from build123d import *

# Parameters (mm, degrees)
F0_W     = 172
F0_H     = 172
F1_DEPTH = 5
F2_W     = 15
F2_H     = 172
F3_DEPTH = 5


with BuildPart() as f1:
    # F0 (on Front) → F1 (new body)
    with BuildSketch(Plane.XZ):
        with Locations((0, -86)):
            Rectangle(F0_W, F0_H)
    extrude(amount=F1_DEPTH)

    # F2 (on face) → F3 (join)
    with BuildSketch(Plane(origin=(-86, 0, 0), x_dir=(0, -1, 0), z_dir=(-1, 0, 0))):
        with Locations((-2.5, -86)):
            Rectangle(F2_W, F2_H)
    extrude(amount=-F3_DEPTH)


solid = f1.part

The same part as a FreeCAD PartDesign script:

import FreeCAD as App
import Part
import Sketcher
from FreeCAD import Vector
Q = App.Units.Quantity

doc = App.newDocument("Part")
body = doc.addObject("PartDesign::Body", "Body")

# Sketch on XZ plane
sketch1 = body.newObject("Sketcher::SketchObject", "Sketch")
sketch1.AttachmentSupport = (doc.getObject("XZ_Plane"), [""])
sketch1.MapMode = "FlatFace"
sketch1.addGeometry(Part.LineSegment(Vector(-86, 0, 0), Vector(-86, -172, 0)), False)
sketch1.addGeometry(Part.LineSegment(Vector(-86, -172, 0), Vector(86, -172, 0)), False)
sketch1.addGeometry(Part.LineSegment(Vector(86, -172, 0), Vector(86, 0, 0)), False)
sketch1.addGeometry(Part.LineSegment(Vector(86, 0, 0), Vector(-86, 0, 0)), False)
sketch1.addConstraint(Sketcher.Constraint("Coincident", 0, 2, 1, 1))
sketch1.addConstraint(Sketcher.Constraint("Coincident", 1, 2, 2, 1))
sketch1.addConstraint(Sketcher.Constraint("Coincident", 2, 2, 3, 1))
sketch1.addConstraint(Sketcher.Constraint("Coincident", 3, 2, 0, 1))
sketch1.addConstraint(Sketcher.Constraint("Vertical", 0))
sketch1.addConstraint(Sketcher.Constraint("Horizontal", 1))
sketch1.addConstraint(Sketcher.Constraint("Vertical", 2))
sketch1.addConstraint(Sketcher.Constraint("Horizontal", 3))
sketch1.addConstraint(Sketcher.Constraint("Symmetric", 2, 2, 3, 2, -1, 1))
sketch1.addConstraint(Sketcher.Constraint("Equal", 3, 0))
sketch1.addConstraint(Sketcher.Constraint("DistanceX", 1, 1, 1, 2, Q("172 mm")))
pad1 = body.newObject("PartDesign::Pad", "Pad")
pad1.Profile = sketch1
pad1.Length = 5

# Sketch on YZ plane
sketch2 = body.newObject("Sketcher::SketchObject", "Sketch001")
sketch2.AttachmentSupport = (doc.getObject("YZ_Plane"), [""])
sketch2.MapMode = "FlatFace"
sketch2.AttachmentOffset = App.Placement(Vector(0, 0, -86), App.Rotation())
sketch2.addGeometry(Part.LineSegment(Vector(10, 0, 0), Vector(10, -172, 0)), False)
sketch2.addGeometry(Part.LineSegment(Vector(10, -172, 0), Vector(-5, -172, 0)), False)
sketch2.addGeometry(Part.LineSegment(Vector(-5, -172, 0), Vector(-5, 0, 0)), False)
sketch2.addGeometry(Part.LineSegment(Vector(-5, 0, 0), Vector(10, 0, 0)), False)
sketch2.addConstraint(Sketcher.Constraint("Coincident", 0, 2, 1, 1))
sketch2.addConstraint(Sketcher.Constraint("Coincident", 1, 2, 2, 1))
sketch2.addConstraint(Sketcher.Constraint("Coincident", 2, 2, 3, 1))
sketch2.addConstraint(Sketcher.Constraint("Coincident", 3, 2, 0, 1))
sketch2.addConstraint(Sketcher.Constraint("Vertical", 0))
sketch2.addConstraint(Sketcher.Constraint("Horizontal", 1))
sketch2.addConstraint(Sketcher.Constraint("Vertical", 2))
sketch2.addConstraint(Sketcher.Constraint("Horizontal", 3))
sketch2.addConstraint(Sketcher.Constraint("PointOnObject", 2, 2, -1))
sketch2.addConstraint(Sketcher.Constraint("DistanceX", 1, 2, 1, 1, Q("15 mm")))
sketch2.addConstraint(Sketcher.Constraint("DistanceY", 0, 2, 0, 1, Q("172 mm")))
sketch2.addConstraint(Sketcher.Constraint("DistanceX", -1, 1, 0, 2, Q("10 mm")))
pad2 = body.newObject("PartDesign::Pad", "Pad001")
pad2.Profile = sketch2
pad2.Length = 5

doc.recompute()
